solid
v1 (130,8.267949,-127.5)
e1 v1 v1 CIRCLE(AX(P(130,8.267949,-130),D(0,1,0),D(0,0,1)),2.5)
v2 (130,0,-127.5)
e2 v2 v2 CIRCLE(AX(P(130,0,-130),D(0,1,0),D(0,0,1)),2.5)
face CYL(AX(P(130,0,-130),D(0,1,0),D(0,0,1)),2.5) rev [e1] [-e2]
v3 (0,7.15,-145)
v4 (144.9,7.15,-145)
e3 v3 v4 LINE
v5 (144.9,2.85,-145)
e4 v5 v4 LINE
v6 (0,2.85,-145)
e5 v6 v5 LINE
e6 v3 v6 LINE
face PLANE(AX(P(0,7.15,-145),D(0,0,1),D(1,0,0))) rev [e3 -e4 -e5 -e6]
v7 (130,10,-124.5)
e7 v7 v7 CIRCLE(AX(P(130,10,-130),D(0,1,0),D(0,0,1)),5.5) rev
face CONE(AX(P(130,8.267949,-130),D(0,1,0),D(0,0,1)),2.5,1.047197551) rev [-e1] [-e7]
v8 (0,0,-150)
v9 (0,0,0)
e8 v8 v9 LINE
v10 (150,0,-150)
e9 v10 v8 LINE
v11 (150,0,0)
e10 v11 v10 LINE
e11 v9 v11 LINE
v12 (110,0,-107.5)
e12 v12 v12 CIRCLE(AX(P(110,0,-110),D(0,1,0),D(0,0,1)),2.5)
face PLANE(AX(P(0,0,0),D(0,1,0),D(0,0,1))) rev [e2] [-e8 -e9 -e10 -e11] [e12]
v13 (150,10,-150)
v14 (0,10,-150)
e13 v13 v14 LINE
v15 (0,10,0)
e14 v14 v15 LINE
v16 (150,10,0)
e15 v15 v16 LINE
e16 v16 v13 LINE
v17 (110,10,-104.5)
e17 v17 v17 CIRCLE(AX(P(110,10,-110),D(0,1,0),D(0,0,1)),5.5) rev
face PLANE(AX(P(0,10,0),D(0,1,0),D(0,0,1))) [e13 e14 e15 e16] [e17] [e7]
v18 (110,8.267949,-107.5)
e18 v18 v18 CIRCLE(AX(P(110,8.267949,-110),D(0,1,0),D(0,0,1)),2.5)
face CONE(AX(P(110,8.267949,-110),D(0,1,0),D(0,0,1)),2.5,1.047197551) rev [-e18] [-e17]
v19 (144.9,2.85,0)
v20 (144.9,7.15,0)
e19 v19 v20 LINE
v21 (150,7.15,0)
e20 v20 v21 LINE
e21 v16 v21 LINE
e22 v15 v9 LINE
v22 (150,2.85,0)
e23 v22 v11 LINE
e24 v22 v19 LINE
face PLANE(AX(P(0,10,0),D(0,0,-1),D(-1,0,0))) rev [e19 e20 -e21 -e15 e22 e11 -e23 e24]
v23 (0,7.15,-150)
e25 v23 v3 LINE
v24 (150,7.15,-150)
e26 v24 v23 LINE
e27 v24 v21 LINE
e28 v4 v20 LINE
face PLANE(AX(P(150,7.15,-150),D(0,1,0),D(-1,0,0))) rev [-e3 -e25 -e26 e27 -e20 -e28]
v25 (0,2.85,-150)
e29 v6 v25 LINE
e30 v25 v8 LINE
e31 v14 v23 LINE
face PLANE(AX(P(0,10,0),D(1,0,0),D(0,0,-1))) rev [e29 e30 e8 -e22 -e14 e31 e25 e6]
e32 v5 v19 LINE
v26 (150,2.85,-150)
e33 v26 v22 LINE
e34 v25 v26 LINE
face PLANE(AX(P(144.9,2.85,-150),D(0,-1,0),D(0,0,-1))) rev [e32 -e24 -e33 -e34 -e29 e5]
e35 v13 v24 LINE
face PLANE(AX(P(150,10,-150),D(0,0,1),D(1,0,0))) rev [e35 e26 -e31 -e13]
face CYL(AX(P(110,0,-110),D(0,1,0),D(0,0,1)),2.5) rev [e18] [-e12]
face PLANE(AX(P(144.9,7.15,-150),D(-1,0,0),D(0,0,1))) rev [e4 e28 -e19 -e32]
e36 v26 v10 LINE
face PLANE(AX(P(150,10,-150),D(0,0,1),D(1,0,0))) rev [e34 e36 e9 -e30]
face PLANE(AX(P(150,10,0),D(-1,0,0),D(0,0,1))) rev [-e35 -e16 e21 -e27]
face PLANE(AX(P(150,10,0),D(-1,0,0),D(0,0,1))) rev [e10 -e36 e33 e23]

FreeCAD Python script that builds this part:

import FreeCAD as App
import Part
import Sketcher


def edges_at(feature, points):
    """Names of the edges that pass closest to the given points."""
    edges = feature.Shape.Edges
    near = lambda p: min(range(len(edges)), key=lambda i: edges[i].distToShape(Part.Vertex(*p))[0])
    return sorted({f"Edge{near(p) + 1}" for p in points})


def add_polygon(sketch, points):
    """Adds a closed chain of lines whose ends are joined by coincident constraints."""
    first, n = sketch.GeometryCount, len(points)
    for a, b in zip(points, points[1:] + points[:1]):
        sketch.addGeometry(Part.LineSegment(App.Vector(*a, 0), App.Vector(*b, 0)), False)
    for i in range(n):
        sketch.addConstraint(Sketcher.Constraint("Coincident", first + i, 2, first + (i + 1) % n, 1))

doc = App.newDocument("Part")
body = doc.addObject("PartDesign::Body", "Body")

# Sketch on XZ plane
sketch1 = body.newObject("Sketcher::SketchObject", "Sketch")
sketch1.AttachmentSupport = (doc.getObject("XZ_Plane"), [""])
sketch1.MapMode = "FlatFace"
add_polygon(sketch1, [(0, -150), (0, 0), (150, 0), (150, -150)])  # lines 0-3
sketch1.addConstraint(Sketcher.Constraint("Vertical", 0))
sketch1.addConstraint(Sketcher.Constraint("Horizontal", 1))
sketch1.addConstraint(Sketcher.Constraint("Vertical", 2))
sketch1.addConstraint(Sketcher.Constraint("Horizontal", 3))
sketch1.addConstraint(Sketcher.Constraint("Coincident", 0, 2, -1, 1))
sketch1.addConstraint(Sketcher.Constraint("Equal", 3, 0))
sketch1.addConstraint(Sketcher.Constraint("DistanceX", 1, 1, 1, 2, 150.0))
pad1 = body.newObject("PartDesign::Pad", "Pad")
pad1.Profile = sketch1
pad1.Length = 10
pad1.Reversed = True

# Sketch on XY plane
sketch2 = body.newObject("Sketcher::SketchObject", "Sketch001")
sketch2.AttachmentSupport = (doc.getObject("XY_Plane"), [""])
sketch2.MapMode = "FlatFace"
add_polygon(sketch2, [(144.9, 7.15), (144.9, 2.85), (150, 2.85), (150, 7.15)])  # lines 0-3
sketch2.addConstraint(Sketcher.Constraint("Vertical", 0))
sketch2.addConstraint(Sketcher.Constraint("Horizontal", 1))
sketch2.addConstraint(Sketcher.Constraint("Vertical", 2))
sketch2.addConstraint(Sketcher.Constraint("Horizontal", 3))
sketch2.addConstraint(Sketcher.Constraint("DistanceX", 1, 1, 1, 2, 5.1))
sketch2.addConstraint(Sketcher.Constraint("DistanceY", 0, 2, 0, 1, 4.3))
sketch2.addConstraint(Sketcher.Constraint("DistanceX", -1, 1, 1, 2, 150.0))
sketch2.addConstraint(Sketcher.Constraint("DistanceY", -1, 1, 0, 2, 2.85))
pocket1 = body.newObject("PartDesign::Pocket", "Pocket")
pocket1.Profile = sketch2
pocket1.Type = "ThroughAll"
pocket1.Midplane = True

# Sketch on YZ plane
sketch3 = body.newObject("Sketcher::SketchObject", "Sketch002")
sketch3.AttachmentSupport = (doc.getObject("YZ_Plane"), [""])
sketch3.MapMode = "FlatFace"
sketch3.AttachmentOffset = App.Placement(App.Vector(0, 0, 144.9), App.Rotation())
add_polygon(sketch3, [(7.15, -145), (2.85, -145), (2.85, -150), (7.15, -150)])  # lines 0-3
sketch3.addConstraint(Sketcher.Constraint("Horizontal", 0))
sketch3.addConstraint(Sketcher.Constraint("Vertical", 1))
sketch3.addConstraint(Sketcher.Constraint("Horizontal", 2))
sketch3.addConstraint(Sketcher.Constraint("Vertical", 3))
sketch3.addConstraint(Sketcher.Constraint("DistanceY", 1, 2, 1, 1, 5.0))
sketch3.addConstraint(Sketcher.Constraint("DistanceX", 0, 2, 0, 1, 4.3))
sketch3.addConstraint(Sketcher.Constraint("DistanceY", 0, 2, -1, 1, 145.0))
sketch3.addConstraint(Sketcher.Constraint("DistanceX", -1, 1, 0, 2, 2.85))
pocket2 = body.newObject("PartDesign::Pocket", "Pocket001")
pocket2.Profile = sketch3
pocket2.Type = "ThroughAll"
pocket2.Midplane = True

# Sketch on XZ plane
sketch4 = body.newObject("Sketcher::SketchObject", "Sketch003")
sketch4.AttachmentSupport = (doc.getObject("XZ_Plane"), [""])
sketch4.MapMode = "FlatFace"
sketch4.AttachmentOffset = App.Placement(App.Vector(0, 0, -10), App.Rotation())
sketch4.addGeometry(Part.Circle(App.Vector(130, -130, 0), App.Vector(0, 0, 1), 2.5), False)
sketch4.addGeometry(Part.Circle(App.Vector(110, -110, 0), App.Vector(0, 0, 1), 2.5), False)
sketch4.addConstraint(Sketcher.Constraint("Equal", 0, 1))
sketch4.addConstraint(Sketcher.Constraint("Diameter", 0, 5.0))
sketch4.addConstraint(Sketcher.Constraint("DistanceX", -1, 1, 0, 3, 130.0))
sketch4.addConstraint(Sketcher.Constraint("DistanceY", 0, 3, -1, 1, 130.0))
sketch4.addConstraint(Sketcher.Constraint("DistanceX", -1, 1, 1, 3, 110.0))
sketch4.addConstraint(Sketcher.Constraint("DistanceY", 1, 3, -1, 1, 110.0))
pocket3 = body.newObject("PartDesign::Pocket", "Pocket002")
pocket3.Profile = sketch4
pocket3.Type = "ThroughAll"
pocket3.Midplane = True
doc.recompute()

chamfer = body.newObject("PartDesign::Chamfer", "Chamfer")
chamfer.Base = (pocket3, edges_at(pocket3, [(130, 10, -132.5), (110, 10, -112.5)]))
chamfer.ChamferType = "Two distances"
chamfer.Size = 3
chamfer.Size2 = 1.732051

doc.recompute()
